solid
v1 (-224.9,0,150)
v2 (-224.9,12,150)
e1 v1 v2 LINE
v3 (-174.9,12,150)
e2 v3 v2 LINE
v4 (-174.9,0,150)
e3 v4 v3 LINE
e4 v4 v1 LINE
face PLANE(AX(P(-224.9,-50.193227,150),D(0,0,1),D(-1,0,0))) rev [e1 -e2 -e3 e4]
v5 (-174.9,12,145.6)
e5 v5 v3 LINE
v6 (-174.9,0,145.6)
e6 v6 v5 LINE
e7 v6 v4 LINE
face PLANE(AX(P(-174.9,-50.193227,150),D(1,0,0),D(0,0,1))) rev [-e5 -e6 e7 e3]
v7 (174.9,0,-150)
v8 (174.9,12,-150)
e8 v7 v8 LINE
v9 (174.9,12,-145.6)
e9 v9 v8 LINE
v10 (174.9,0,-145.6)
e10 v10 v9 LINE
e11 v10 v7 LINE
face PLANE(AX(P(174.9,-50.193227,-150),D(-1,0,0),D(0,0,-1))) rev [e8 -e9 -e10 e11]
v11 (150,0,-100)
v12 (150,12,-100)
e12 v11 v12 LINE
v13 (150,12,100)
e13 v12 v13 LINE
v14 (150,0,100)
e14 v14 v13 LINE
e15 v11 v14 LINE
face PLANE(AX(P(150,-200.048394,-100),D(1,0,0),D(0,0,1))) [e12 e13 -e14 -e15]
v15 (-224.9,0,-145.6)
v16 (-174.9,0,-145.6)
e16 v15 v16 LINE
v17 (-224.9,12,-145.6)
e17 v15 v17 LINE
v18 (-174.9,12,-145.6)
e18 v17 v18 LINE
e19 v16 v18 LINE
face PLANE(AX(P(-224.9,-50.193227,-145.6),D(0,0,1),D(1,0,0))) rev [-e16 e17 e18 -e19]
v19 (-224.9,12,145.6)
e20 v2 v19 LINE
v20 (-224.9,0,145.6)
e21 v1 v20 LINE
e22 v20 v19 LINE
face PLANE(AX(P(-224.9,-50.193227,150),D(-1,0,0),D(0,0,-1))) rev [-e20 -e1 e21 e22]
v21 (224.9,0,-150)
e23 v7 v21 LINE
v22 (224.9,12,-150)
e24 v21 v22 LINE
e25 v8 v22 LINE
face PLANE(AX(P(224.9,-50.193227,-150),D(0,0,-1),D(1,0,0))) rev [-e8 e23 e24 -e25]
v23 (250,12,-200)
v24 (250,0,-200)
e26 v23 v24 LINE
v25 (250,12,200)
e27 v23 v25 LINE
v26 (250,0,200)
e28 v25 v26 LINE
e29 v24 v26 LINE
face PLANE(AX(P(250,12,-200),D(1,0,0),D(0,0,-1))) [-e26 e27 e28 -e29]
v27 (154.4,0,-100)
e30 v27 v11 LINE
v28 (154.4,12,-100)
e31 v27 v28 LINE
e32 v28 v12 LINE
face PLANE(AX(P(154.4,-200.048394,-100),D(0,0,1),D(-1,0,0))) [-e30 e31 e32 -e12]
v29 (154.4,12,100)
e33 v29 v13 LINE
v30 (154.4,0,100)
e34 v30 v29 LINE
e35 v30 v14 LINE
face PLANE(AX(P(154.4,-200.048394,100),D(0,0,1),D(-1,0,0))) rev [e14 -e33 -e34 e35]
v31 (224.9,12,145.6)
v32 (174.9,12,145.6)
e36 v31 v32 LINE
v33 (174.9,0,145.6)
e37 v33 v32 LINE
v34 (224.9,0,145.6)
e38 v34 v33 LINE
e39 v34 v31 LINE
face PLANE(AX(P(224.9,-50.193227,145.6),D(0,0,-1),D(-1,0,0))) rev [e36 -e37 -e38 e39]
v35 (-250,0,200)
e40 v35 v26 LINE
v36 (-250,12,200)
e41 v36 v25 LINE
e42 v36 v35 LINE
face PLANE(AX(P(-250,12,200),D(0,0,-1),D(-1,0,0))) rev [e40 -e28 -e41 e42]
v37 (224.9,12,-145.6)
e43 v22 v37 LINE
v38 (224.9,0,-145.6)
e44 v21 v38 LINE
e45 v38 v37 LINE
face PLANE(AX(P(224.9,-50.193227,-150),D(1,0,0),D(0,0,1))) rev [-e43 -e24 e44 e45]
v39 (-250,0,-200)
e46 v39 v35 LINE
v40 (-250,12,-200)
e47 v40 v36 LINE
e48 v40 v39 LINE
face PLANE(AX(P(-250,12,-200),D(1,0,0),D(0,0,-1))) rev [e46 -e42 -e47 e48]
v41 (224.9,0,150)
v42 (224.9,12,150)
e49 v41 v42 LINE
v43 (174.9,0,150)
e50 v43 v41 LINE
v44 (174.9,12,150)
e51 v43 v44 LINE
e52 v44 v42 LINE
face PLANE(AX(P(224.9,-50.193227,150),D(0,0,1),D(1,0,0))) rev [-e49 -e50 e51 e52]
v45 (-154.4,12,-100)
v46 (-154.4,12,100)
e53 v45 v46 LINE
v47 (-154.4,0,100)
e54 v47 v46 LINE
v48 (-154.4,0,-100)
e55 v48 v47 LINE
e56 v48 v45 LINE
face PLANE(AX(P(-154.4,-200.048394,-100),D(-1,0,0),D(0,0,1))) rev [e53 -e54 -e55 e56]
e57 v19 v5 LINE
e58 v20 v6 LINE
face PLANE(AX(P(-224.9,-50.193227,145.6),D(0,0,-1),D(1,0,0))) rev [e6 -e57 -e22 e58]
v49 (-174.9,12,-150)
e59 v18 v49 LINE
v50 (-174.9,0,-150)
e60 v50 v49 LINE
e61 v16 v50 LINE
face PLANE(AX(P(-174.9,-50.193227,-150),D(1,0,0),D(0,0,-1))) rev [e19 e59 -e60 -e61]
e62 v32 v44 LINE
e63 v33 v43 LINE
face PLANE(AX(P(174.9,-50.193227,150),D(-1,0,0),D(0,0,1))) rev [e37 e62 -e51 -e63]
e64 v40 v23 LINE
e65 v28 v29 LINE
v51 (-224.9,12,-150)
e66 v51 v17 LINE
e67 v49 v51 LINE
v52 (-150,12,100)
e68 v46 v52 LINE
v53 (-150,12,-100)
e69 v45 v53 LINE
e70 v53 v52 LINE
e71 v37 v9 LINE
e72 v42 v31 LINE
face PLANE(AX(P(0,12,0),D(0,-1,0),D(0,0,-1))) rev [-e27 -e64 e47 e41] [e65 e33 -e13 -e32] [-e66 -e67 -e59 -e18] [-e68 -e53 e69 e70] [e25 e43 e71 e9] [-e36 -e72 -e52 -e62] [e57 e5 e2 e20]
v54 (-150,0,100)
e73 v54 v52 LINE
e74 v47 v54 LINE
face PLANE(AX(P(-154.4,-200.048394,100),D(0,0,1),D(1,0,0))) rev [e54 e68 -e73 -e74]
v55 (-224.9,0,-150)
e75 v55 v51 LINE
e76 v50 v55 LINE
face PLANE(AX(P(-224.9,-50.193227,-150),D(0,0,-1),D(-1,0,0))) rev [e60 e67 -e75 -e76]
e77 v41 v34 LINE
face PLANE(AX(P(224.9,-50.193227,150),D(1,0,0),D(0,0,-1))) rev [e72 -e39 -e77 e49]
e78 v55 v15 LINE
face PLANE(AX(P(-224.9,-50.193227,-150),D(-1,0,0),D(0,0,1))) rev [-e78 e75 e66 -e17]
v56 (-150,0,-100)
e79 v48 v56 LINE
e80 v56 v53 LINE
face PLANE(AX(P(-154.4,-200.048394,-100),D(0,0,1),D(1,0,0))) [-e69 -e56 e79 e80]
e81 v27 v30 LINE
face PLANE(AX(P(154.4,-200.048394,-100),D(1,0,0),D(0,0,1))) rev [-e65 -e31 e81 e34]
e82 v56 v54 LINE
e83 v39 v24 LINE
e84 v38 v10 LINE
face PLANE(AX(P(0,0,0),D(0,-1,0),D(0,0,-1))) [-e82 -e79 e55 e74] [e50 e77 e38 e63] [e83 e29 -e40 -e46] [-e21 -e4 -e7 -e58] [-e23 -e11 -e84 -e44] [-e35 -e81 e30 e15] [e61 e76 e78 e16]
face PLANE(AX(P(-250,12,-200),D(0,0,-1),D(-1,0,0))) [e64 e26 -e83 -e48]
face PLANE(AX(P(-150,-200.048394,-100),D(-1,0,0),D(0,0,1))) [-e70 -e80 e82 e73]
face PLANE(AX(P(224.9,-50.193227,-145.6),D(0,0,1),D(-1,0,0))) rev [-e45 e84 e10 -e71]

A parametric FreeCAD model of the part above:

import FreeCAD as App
import Part
import Sketcher
from FreeCAD import Vector
Q = App.Units.Quantity


def add_polygon(sketch, points):
    """Adds a closed chain of lines whose ends are joined by coincident constraints."""
    first, n = sketch.GeometryCount, len(points)
    for a, b in zip(points, points[1:] + points[:1]):
        sketch.addGeometry(Part.LineSegment(App.Vector(*a, 0), App.Vector(*b, 0)), False)
    for i in range(n):
        sketch.addConstraint(Sketcher.Constraint("Coincident", first + i, 2, first + (i + 1) % n, 1))

doc = App.newDocument("Part")
body = doc.addObject("PartDesign::Body", "Body")

# Sketch on XZ plane
sketch1 = doc.addObject("Sketcher::SketchObject", "Sketch")
body.addObject(sketch1)
sketch1.AttachmentSupport = (doc.XZ_Plane, [""])
sketch1.MapMode = "FlatFace"
add_polygon(sketch1, [(-250, -200), (-250, 200), (250, 200), (250, -200)])  # lines 0-3
sketch1.addConstraint([
    Sketcher.Constraint("Vertical", 0),
    Sketcher.Constraint("Horizontal", 1),
    Sketcher.Constraint("Vertical", 2),
    Sketcher.Constraint("Horizontal", 3),
    Sketcher.Constraint("Symmetric", 0, 2, 2, 2, -1, 1),
    Sketcher.Constraint("DistanceX", 1, 1, 1, 2, Q("500 mm")),
    Sketcher.Constraint("DistanceY", 0, 1, 0, 2, Q("400 mm")),
])
pad1 = doc.addObject("PartDesign::Pad", "Pad")
body.addObject(pad1)
pad1.Profile = sketch1
pad1.Length = 12
pad1.Reversed = True

# Sketch on XZ plane
sketch2 = doc.addObject("Sketcher::SketchObject", "Sketch001")
body.addObject(sketch2)
sketch2.AttachmentSupport = (doc.XZ_Plane, [""])
sketch2.MapMode = "FlatFace"
sketch2.AttachmentOffset = App.Placement(Vector(0, 0, -12), App.Rotation())
add_polygon(sketch2, [(-154.4, -100), (-154.4, 100), (-150, 100), (-150, -100)])  # lines 0-3
sketch2.addConstraint([
    Sketcher.Constraint("Vertical", 0),
    Sketcher.Constraint("Horizontal", 1),
    Sketcher.Constraint("Vertical", 2),
    Sketcher.Constraint("Horizontal", 3),
    Sketcher.Constraint("DistanceY", 0, 1, 0, 2, Q("200 mm")),
    Sketcher.Constraint("DistanceX", 1, 1, 1, 2, Q("4.4 mm")),
    Sketcher.Constraint("DistanceY", -1, 1, 0, 2, Q("100 mm")),
    Sketcher.Constraint("DistanceX", 1, 2, -1, 1, Q("150 mm")),
])
pocket1 = doc.addObject("PartDesign::Pocket", "Pocket")
body.addObject(pocket1)
pocket1.Profile = sketch2
pocket1.Length = 12
pocket1.Reversed = True
doc.recompute()

mirrored = doc.addObject("PartDesign::Mirrored", "Mirrored")
body.addObject(mirrored)
mirrored.Originals = [pocket1]
mirrored.MirrorPlane = (doc.YZ_Plane, [""])
body.Tip = mirrored

# Sketch on XZ plane
sketch3 = doc.addObject("Sketcher::SketchObject", "Sketch002")
body.addObject(sketch3)
sketch3.AttachmentSupport = (doc.XZ_Plane, [""])
sketch3.MapMode = "FlatFace"
sketch3.AttachmentOffset = App.Placement(Vector(0, 0, -12), App.Rotation())
add_polygon(sketch3, [(-224.9, -150), (-224.9, -145.6), (-174.9, -145.6), (-174.9, -150)])  # lines 0-3
sketch3.addConstraint([
    Sketcher.Constraint("Vertical", 0),
    Sketcher.Constraint("Horizontal", 1),
    Sketcher.Constraint("Vertical", 2),
    Sketcher.Constraint("Horizontal", 3),
    Sketcher.Constraint("DistanceX", 1, 1, 1, 2, Q("50 mm")),
    Sketcher.Constraint("DistanceY", 0, 1, 0, 2, Q("4.4 mm")),
    Sketcher.Constraint("DistanceY", 2, 2, -1, 1, Q("150 mm")),
    Sketcher.Constraint("DistanceX", 0, 2, -1, 1, Q("224.9 mm")),
])
pocket2 = doc.addObject("PartDesign::Pocket", "Pocket001")
body.addObject(pocket2)
pocket2.Profile = sketch3
pocket2.Length = 12
pocket2.Reversed = True
doc.recompute()

mirrored2 = doc.addObject("PartDesign::Mirrored", "Mirrored001")
body.addObject(mirrored2)
mirrored2.Originals = [pocket2]
mirrored2.MirrorPlane = (doc.XY_Plane, [""])
body.Tip = mirrored2
doc.recompute()

mirrored3 = doc.addObject("PartDesign::Mirrored", "Mirrored002")
body.addObject(mirrored3)
mirrored3.Originals = [pocket2]
mirrored3.MirrorPlane = (doc.YZ_Plane, [""])
body.Tip = mirrored3

# Sketch on XZ plane
sketch4 = doc.addObject("Sketcher::SketchObject", "Sketch003")
body.addObject(sketch4)
sketch4.AttachmentSupport = (doc.XZ_Plane, [""])
sketch4.MapMode = "FlatFace"
sketch4.AttachmentOffset = App.Placement(Vector(0, 0, -12), App.Rotation())
add_polygon(sketch4, [(224.9, 150), (224.9, 145.6), (174.9, 145.6), (174.9, 150)])  # lines 0-3
sketch4.addConstraint([
    Sketcher.Constraint("Vertical", 0),
    Sketcher.Constraint("Horizontal", 1),
    Sketcher.Constraint("Vertical", 2),
    Sketcher.Constraint("Horizontal", 3),
    Sketcher.Constraint("DistanceX", 1, 2, 1, 1, Q("50 mm")),
    Sketcher.Constraint("DistanceY", 0, 2, 0, 1, Q("4.4 mm")),
    Sketcher.Constraint("DistanceY", -1, 1, 2, 2, Q("150 mm")),
    Sketcher.Constraint("DistanceX", -1, 1, 0, 2, Q("224.9 mm")),
])
pocket3 = doc.addObject("PartDesign::Pocket", "Pocket002")
body.addObject(pocket3)
pocket3.Profile = sketch4
pocket3.Length = 12
pocket3.Reversed = True

doc.recompute()
